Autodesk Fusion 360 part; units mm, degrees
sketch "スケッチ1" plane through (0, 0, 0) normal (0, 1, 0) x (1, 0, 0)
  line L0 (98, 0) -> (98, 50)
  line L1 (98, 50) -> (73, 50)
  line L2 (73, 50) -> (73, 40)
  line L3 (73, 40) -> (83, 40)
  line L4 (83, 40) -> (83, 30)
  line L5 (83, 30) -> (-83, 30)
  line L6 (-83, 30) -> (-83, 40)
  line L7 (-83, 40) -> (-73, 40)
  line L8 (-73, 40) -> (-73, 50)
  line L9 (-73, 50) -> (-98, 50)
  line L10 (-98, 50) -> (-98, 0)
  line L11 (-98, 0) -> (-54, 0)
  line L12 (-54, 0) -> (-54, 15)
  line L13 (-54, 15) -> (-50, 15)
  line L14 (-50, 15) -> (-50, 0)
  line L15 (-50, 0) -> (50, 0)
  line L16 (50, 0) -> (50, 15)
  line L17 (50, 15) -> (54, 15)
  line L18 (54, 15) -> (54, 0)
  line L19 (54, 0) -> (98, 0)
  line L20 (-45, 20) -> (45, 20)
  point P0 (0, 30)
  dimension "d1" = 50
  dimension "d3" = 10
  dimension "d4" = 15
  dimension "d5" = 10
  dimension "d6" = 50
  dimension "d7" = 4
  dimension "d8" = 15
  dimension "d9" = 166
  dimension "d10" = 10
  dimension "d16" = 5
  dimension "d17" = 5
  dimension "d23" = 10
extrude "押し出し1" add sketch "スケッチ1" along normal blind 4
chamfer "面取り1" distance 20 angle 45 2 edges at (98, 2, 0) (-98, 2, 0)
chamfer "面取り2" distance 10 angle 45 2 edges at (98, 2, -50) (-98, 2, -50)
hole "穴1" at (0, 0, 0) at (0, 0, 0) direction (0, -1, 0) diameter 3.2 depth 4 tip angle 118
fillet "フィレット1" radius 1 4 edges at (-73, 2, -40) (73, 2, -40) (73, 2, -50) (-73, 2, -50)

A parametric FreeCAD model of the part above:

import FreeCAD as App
import Part
import Sketcher

V = App.Vector
Q = App.Units.Quantity


def edges_at(feature, points):
    """Names of the edges that pass closest to the given points."""
    edges = feature.Shape.Edges
    near = lambda p: min(range(len(edges)), key=lambda i: edges[i].distToShape(Part.Vertex(*p))[0])
    return sorted({f"Edge{near(p) + 1}" for p in points})

doc = App.newDocument("Part")
body = doc.addObject("PartDesign::Body", "Body")

# Sketch on XZ plane
sketch1 = doc.addObject("Sketcher::SketchObject", "Sketch")
body.addObject(sketch1)
sketch1.AttachmentSupport = (doc.XZ_Plane, [""])
sketch1.MapMode = "FlatFace"
sketch1.addGeometry([
    Part.LineSegment(V(54, 0, 0), V(98, 0, 0)),  # 0
    Part.LineSegment(V(98, 0, 0), V(98, -50, 0)),  # 1
    Part.LineSegment(V(98, -50, 0), V(73, -50, 0)),  # 2
    Part.LineSegment(V(73, -50, 0), V(73, -40, 0)),  # 3
    Part.LineSegment(V(73, -40, 0), V(83, -40, 0)),  # 4
    Part.LineSegment(V(83, -40, 0), V(83, -30, 0)),  # 5
    Part.LineSegment(V(83, -30, 0), V(-83, -30, 0)),  # 6
    Part.LineSegment(V(-83, -30, 0), V(-83, -40, 0)),  # 7
    Part.LineSegment(V(-83, -40, 0), V(-73, -40, 0)),  # 8
    Part.LineSegment(V(-73, -40, 0), V(-73, -50, 0)),  # 9
    Part.LineSegment(V(-73, -50, 0), V(-98, -50, 0)),  # 10
    Part.LineSegment(V(-98, -50, 0), V(-98, 0, 0)),  # 11
    Part.LineSegment(V(-98, 0, 0), V(-54, 0, 0)),  # 12
    Part.LineSegment(V(-54, 0, 0), V(-54, -15, 0)),  # 13
    Part.LineSegment(V(-54, -15, 0), V(-50, -15, 0)),  # 14
    Part.LineSegment(V(-50, -15, 0), V(-50, 0, 0)),  # 15
    Part.LineSegment(V(-50, 0, 0), V(50, 0, 0)),  # 16
    Part.LineSegment(V(50, 0, 0), V(50, -15, 0)),  # 17
    Part.LineSegment(V(50, -15, 0), V(54, -15, 0)),  # 18
    Part.LineSegment(V(54, -15, 0), V(54, 0, 0)),  # 19
], False)
sketch1.addConstraint([
    Sketcher.Constraint("Coincident", 0, 2, 1, 1),
    Sketcher.Constraint("Coincident", 1, 2, 2, 1),
    Sketcher.Constraint("Coincident", 2, 2, 3, 1),
    Sketcher.Constraint("Coincident", 3, 2, 4, 1),
    Sketcher.Constraint("Coincident", 4, 2, 5, 1),
    Sketcher.Constraint("Coincident", 5, 2, 6, 1),
    Sketcher.Constraint("Coincident", 6, 2, 7, 1),
    Sketcher.Constraint("Coincident", 7, 2, 8, 1),
    Sketcher.Constraint("Coincident", 8, 2, 9, 1),
    Sketcher.Constraint("Coincident", 9, 2, 10, 1),
    Sketcher.Constraint("Coincident", 10, 2, 11, 1),
    Sketcher.Constraint("Coincident", 11, 2, 12, 1),
    Sketcher.Constraint("Coincident", 12, 2, 13, 1),
    Sketcher.Constraint("Coincident", 13, 2, 14, 1),
    Sketcher.Constraint("Coincident", 14, 2, 15, 1),
    Sketcher.Constraint("Coincident", 15, 2, 16, 1),
    Sketcher.Constraint("Coincident", 16, 2, 17, 1),
    Sketcher.Constraint("Coincident", 17, 2, 18, 1),
    Sketcher.Constraint("Coincident", 18, 2, 19, 1),
    Sketcher.Constraint("Coincident", 19, 2, 0, 1),
    Sketcher.Constraint("Horizontal", 0),
    Sketcher.Constraint("Vertical", 1),
    Sketcher.Constraint("Horizontal", 2),
    Sketcher.Constraint("Vertical", 3),
    Sketcher.Constraint("Horizontal", 4),
    Sketcher.Constraint("Vertical", 5),
    Sketcher.Constraint("Horizontal", 6),
    Sketcher.Constraint("Vertical", 7),
    Sketcher.Constraint("Horizontal", 8),
    Sketcher.Constraint("Vertical", 9),
    Sketcher.Constraint("Horizontal", 10),
    Sketcher.Constraint("Vertical", 11),
    Sketcher.Constraint("Horizontal", 12),
    Sketcher.Constraint("Vertical", 13),
    Sketcher.Constraint("Horizontal", 14),
    Sketcher.Constraint("Vertical", 15),
    Sketcher.Constraint("Horizontal", 16),
    Sketcher.Constraint("Vertical", 17),
    Sketcher.Constraint("Horizontal", 18),
    Sketcher.Constraint("Vertical", 19),
    Sketcher.Constraint("Symmetric", 0, 2, 11, 2, -1, 1),
    Sketcher.Constraint("Symmetric", 15, 2, 16, 2, -1, 1),
    Sketcher.Constraint("Symmetric", 4, 2, 7, 2, -2),
    Sketcher.Constraint("Symmetric", 2, 2, 9, 2, -2),
    Sketcher.Constraint("Symmetric", 13, 2, 18, 2, -2),
    Sketcher.Constraint("PointOnObject", 0, 2, -1),
    Sketcher.Constraint("Equal", 8, 3),
    Sketcher.Constraint("Equal", 3, 5),
    Sketcher.Constraint("DistanceX", 4, 1, 4, 2, Q("10 mm")),
    Sketcher.Constraint("DistanceX", 6, 2, 6, 1, Q("166 mm")),
    Sketcher.Constraint("DistanceX", 14, 1, 14, 2, Q("4 mm")),
    Sketcher.Constraint("DistanceY", 1, 2, 1, 1, Q("50 mm")),
    Sketcher.Constraint("DistanceY", 13, 2, 13, 1, Q("15 mm")),
    Sketcher.Constraint("DistanceX", 14, 2, -1, 1, Q("50 mm")),
    Sketcher.Constraint("DistanceX", 4, 2, 1, 2, Q("15 mm")),
])
pad1 = doc.addObject("PartDesign::Pad", "Pad")
body.addObject(pad1)
pad1.Profile = sketch1
pad1.Length = 4
pad1.Reversed = True
doc.recompute()

chamfer = doc.addObject("PartDesign::Chamfer", "Chamfer")
body.addObject(chamfer)
chamfer.Base = (pad1, edges_at(pad1, [(98, 2, 0), (-98, 2, 0)]))
chamfer.Size = 20
doc.recompute()

chamfer2 = doc.addObject("PartDesign::Chamfer", "Chamfer001")
body.addObject(chamfer2)
chamfer2.Base = (chamfer, edges_at(chamfer, [(98, 2, -50), (-98, 2, -50)]))
chamfer2.Size = 10

# Sketch on XZ plane
sketch2 = doc.addObject("Sketcher::SketchObject", "Sketch001")
body.addObject(sketch2)
sketch2.AttachmentSupport = (doc.XZ_Plane, [""])
sketch2.MapMode = "FlatFace"
sketch2.addGeometry([
    Part.Circle(V(0, 0, 0), V(0, 0, 1), 1.6),
    Part.Circle(V(0, 0, 0), V(0, 0, 1), 1.6),
], False)
sketch2.addConstraint([
    Sketcher.Constraint("Coincident", 0, 3, -1, 1),
    Sketcher.Constraint("Coincident", 1, 3, -1, 1),
    Sketcher.Constraint("Equal", 0, 1),
    Sketcher.Constraint("Diameter", 0, Q("3.2 mm")),
])
doc.recompute()
hole = doc.addObject("PartDesign::Hole", "Hole")
body.addObject(hole)
hole.Profile = sketch2
hole.ThreadType = "None"
hole.Diameter = 3.2
hole.DepthType = "Dimension"
hole.Depth = 4
hole.DrillPoint = "Angled"
hole.DrillPointAngle = 118
hole.Reversed = True
doc.recompute()

fillet = doc.addObject("PartDesign::Fillet", "Fillet")
body.addObject(fillet)
fillet.Base = (hole, edges_at(hole, [
    (-73, 2, -40),
    (73, 2, -40),
    (73, 2, -50),
    (-73, 2, -50),
]))
fillet.Radius = 1

doc.recompute()
